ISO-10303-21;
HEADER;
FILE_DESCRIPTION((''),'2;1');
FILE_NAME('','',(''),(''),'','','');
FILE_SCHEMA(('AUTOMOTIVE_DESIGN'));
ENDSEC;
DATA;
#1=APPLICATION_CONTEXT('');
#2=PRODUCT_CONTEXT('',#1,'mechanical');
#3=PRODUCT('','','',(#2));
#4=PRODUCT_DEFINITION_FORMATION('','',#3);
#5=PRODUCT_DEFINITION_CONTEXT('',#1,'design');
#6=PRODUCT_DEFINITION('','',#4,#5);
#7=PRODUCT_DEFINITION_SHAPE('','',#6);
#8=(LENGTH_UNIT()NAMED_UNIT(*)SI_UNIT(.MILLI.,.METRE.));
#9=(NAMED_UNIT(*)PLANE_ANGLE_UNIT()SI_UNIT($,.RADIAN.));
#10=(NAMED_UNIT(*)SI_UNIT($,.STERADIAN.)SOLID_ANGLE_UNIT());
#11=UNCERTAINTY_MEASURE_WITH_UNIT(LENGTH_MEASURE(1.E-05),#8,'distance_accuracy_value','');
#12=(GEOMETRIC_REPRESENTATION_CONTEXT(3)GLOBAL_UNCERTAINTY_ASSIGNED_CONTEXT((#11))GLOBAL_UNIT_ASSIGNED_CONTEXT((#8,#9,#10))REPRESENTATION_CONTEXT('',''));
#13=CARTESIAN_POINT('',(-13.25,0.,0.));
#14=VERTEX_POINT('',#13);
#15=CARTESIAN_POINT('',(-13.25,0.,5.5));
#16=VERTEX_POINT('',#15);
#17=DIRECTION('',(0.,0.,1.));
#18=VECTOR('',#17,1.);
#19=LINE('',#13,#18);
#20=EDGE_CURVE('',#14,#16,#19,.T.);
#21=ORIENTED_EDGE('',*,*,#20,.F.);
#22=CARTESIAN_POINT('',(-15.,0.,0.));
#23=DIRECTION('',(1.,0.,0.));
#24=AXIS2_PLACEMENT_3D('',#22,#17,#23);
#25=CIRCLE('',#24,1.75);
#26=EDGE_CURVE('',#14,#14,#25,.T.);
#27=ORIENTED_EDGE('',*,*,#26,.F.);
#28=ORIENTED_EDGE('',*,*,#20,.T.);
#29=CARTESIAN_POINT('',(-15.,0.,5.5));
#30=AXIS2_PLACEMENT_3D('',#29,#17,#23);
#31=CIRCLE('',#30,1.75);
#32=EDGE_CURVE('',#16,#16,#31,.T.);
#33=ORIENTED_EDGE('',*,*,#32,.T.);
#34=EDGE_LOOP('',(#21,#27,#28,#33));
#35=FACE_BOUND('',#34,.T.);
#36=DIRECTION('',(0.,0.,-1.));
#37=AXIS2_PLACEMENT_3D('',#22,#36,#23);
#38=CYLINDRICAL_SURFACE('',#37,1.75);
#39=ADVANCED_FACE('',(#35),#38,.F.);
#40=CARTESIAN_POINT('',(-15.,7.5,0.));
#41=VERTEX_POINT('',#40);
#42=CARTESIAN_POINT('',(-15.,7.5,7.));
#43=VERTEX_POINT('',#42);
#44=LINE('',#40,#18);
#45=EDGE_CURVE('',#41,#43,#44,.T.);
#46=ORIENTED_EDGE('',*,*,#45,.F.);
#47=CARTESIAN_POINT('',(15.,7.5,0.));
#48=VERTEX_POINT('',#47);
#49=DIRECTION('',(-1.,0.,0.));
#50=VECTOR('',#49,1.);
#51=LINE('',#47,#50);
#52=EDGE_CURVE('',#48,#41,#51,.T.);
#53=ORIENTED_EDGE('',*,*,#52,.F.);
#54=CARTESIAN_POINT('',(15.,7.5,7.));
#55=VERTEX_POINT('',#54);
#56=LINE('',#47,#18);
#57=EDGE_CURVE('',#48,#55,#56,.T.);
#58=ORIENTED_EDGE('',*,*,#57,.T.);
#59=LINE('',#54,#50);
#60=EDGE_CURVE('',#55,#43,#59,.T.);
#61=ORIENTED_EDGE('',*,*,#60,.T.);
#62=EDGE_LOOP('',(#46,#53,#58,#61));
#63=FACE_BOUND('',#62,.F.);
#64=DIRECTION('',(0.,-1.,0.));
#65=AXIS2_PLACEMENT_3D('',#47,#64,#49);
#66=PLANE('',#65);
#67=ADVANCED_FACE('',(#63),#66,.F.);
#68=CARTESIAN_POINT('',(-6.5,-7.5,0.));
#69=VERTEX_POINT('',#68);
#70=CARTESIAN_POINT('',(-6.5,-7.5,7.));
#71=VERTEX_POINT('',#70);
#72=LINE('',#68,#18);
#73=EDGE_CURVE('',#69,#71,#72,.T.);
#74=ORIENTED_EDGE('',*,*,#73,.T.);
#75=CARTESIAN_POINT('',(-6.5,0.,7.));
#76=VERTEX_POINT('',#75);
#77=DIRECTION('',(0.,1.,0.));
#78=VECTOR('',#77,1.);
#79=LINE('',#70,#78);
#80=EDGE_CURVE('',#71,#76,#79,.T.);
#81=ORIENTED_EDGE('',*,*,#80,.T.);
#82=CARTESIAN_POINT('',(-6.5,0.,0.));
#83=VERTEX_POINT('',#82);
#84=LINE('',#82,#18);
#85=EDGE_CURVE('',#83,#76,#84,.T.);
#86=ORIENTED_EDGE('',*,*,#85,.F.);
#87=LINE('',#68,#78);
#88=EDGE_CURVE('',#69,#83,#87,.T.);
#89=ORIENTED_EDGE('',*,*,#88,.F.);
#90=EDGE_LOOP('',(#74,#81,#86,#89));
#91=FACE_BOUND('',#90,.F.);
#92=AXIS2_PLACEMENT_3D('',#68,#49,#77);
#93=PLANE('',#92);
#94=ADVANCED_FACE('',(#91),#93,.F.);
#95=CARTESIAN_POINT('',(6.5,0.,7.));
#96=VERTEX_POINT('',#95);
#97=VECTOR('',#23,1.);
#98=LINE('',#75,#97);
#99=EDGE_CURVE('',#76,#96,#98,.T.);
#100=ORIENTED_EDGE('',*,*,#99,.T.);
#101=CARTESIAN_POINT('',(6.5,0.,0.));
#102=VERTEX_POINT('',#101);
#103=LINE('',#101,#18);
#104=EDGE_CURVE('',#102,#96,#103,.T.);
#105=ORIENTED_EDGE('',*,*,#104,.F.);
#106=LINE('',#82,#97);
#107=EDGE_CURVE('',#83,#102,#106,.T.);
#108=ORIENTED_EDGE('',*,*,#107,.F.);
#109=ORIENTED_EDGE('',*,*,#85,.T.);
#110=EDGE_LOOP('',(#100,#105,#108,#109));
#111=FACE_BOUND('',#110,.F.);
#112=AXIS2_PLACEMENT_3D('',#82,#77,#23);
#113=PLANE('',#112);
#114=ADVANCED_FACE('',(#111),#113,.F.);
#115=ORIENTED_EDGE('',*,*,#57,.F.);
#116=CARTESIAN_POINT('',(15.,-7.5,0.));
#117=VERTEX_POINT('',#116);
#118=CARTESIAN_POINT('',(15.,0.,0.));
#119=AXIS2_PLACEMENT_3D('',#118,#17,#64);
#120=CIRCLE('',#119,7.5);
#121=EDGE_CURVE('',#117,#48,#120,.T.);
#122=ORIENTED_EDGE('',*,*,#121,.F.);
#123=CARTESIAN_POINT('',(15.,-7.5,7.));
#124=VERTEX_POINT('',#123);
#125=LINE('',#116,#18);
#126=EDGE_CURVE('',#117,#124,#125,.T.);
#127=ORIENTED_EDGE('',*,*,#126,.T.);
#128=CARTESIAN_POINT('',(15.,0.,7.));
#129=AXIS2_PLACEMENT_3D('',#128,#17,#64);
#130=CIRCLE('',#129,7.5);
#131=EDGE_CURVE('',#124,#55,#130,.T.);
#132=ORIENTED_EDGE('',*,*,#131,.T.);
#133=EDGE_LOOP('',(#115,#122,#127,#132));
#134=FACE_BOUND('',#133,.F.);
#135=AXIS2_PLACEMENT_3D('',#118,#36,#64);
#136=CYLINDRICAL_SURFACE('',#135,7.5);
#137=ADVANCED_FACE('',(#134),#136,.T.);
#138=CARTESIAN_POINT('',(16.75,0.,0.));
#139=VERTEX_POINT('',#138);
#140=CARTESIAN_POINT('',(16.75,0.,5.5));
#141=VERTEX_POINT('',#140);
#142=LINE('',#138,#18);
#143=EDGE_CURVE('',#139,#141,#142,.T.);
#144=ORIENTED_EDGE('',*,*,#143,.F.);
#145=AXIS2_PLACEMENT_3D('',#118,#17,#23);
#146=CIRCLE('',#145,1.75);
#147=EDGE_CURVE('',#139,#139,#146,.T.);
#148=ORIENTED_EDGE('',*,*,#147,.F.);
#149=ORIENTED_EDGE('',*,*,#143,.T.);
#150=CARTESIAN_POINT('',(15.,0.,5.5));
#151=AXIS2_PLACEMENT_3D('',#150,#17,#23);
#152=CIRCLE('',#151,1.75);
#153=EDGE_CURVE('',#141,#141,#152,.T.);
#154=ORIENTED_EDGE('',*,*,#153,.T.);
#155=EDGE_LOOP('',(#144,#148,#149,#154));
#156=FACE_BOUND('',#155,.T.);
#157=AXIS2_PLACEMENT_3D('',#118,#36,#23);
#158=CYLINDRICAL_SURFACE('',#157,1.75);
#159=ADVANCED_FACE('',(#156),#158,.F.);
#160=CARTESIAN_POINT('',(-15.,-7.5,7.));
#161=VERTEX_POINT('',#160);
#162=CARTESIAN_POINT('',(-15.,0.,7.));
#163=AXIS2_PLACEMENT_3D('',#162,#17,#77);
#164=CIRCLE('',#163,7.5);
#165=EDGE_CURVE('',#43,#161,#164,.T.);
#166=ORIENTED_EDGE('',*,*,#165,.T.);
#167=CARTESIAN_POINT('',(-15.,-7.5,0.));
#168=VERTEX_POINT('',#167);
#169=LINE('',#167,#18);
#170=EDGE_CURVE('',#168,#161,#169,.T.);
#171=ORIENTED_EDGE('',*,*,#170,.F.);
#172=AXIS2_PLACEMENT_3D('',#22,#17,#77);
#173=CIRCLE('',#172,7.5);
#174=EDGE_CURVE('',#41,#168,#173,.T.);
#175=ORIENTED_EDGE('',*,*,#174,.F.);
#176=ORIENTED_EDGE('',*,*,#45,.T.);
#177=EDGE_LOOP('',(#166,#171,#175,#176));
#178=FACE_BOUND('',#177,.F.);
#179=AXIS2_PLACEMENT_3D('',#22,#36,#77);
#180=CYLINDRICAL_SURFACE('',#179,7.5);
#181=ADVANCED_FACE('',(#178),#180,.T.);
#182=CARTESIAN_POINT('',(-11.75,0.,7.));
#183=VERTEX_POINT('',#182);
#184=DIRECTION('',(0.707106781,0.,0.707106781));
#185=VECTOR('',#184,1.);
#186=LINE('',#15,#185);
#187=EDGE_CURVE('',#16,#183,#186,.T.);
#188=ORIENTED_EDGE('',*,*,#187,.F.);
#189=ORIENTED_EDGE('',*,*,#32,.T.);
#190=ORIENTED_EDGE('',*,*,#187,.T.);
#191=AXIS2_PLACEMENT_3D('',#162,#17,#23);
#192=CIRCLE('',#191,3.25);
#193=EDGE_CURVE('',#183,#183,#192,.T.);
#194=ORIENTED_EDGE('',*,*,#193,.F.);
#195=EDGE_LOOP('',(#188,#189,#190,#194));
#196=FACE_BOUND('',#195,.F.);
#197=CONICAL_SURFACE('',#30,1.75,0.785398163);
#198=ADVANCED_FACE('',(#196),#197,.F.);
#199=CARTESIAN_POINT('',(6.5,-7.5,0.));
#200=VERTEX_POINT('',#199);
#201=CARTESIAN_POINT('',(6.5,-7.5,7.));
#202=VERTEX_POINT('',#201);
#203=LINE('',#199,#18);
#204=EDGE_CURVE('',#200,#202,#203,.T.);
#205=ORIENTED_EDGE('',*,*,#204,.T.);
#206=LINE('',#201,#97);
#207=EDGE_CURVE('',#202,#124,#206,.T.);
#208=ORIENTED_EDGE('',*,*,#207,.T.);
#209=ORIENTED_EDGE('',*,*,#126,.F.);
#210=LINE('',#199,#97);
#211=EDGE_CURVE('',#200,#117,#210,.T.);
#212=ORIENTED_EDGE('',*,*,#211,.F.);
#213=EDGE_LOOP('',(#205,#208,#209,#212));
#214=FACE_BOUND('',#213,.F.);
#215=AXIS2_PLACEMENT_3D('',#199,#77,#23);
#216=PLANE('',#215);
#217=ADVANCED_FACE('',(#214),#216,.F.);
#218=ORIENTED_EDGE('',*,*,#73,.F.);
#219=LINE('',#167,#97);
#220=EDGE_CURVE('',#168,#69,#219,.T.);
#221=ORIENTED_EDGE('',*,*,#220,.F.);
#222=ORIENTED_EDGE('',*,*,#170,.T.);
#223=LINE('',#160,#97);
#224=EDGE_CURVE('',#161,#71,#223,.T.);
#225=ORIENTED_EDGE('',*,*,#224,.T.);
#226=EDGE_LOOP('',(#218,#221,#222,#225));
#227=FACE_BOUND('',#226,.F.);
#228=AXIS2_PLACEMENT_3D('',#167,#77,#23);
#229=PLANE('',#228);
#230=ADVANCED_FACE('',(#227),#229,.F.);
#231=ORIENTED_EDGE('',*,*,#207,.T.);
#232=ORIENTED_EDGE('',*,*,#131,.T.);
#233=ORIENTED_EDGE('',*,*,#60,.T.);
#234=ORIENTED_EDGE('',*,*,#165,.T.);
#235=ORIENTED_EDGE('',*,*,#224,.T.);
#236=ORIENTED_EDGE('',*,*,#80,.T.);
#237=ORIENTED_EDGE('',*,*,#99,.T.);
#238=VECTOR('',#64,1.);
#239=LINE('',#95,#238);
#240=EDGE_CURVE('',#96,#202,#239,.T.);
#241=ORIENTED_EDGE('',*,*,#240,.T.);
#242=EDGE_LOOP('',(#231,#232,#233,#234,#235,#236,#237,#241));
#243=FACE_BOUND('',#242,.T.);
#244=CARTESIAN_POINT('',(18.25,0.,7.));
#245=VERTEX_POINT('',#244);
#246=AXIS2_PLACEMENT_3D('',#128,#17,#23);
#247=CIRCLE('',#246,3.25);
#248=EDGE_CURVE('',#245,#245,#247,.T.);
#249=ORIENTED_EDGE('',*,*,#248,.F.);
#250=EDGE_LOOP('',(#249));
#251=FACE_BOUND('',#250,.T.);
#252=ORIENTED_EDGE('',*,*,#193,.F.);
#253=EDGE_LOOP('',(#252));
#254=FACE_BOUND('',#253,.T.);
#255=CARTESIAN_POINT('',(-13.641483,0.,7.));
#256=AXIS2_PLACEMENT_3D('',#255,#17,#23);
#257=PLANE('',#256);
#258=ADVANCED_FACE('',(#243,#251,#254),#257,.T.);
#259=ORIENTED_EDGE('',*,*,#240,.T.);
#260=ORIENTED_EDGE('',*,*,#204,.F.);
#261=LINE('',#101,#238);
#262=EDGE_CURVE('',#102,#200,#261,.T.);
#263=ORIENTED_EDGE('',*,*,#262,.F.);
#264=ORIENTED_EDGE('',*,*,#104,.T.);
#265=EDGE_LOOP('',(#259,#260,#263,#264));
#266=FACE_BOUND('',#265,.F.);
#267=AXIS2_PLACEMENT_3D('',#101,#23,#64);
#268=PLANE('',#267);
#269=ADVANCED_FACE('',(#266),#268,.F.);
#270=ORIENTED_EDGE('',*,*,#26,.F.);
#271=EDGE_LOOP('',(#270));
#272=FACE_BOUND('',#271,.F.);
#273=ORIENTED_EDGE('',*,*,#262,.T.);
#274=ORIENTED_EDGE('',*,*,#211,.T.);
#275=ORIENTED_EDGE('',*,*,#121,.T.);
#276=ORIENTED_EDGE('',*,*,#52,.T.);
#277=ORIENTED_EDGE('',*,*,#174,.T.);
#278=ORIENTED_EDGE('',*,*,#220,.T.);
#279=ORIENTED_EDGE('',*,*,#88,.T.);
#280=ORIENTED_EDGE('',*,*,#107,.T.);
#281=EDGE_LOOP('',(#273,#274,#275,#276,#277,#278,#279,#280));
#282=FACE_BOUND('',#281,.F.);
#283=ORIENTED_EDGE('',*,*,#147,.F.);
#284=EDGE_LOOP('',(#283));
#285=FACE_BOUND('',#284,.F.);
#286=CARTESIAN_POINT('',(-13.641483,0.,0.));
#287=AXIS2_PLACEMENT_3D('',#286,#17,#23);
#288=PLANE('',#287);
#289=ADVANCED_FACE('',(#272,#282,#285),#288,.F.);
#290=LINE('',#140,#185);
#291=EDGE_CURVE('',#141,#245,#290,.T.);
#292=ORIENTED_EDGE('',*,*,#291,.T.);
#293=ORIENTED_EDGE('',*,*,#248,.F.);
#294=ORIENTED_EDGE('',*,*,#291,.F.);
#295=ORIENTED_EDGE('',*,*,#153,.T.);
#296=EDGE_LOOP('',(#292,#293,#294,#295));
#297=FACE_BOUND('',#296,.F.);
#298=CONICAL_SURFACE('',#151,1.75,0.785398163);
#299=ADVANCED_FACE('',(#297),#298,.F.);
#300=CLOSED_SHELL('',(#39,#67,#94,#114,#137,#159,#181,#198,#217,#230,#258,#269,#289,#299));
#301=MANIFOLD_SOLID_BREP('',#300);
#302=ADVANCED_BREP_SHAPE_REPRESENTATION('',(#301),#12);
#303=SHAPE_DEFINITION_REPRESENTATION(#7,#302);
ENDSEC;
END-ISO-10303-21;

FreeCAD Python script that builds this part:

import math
import FreeCAD as App
import Part
import Sketcher
from FreeCAD import Vector
Q = App.Units.Quantity


def edges_at(feature, points):
    """Names of the edges that pass closest to the given points."""
    edges = feature.Shape.Edges
    near = lambda p: min(range(len(edges)), key=lambda i: edges[i].distToShape(Part.Vertex(*p))[0])
    return sorted({f"Edge{near(p) + 1}" for p in points})

doc = App.newDocument("Part")
body = doc.addObject("PartDesign::Body", "Body")

sketch1 = body.newObject("Sketcher::SketchObject", "Sketch")
sketch1.AttachmentSupport = (doc.getObject("XY_Plane"), [""])
sketch1.MapMode = "FlatFace"
sketch1.addGeometry(Part.LineSegment(Vector(-15, -7.5, 0), Vector(-6.5, -7.5, 0)), False)
sketch1.addGeometry(Part.LineSegment(Vector(-6.5, -7.5, 0), Vector(-6.5, 0, 0)), False)
sketch1.addGeometry(Part.LineSegment(Vector(-6.5, 0, 0), Vector(6.5, 0, 0)), False)
sketch1.addGeometry(Part.LineSegment(Vector(6.5, 0, 0), Vector(6.5, -7.5, 0)), False)
sketch1.addGeometry(Part.LineSegment(Vector(6.5, -7.5, 0), Vector(15, -7.5, 0)), False)
sketch1.addGeometry(Part.ArcOfCircle(Part.Circle(Vector(15, 0, 0), Vector(0, 0, 1), 7.5), math.radians(-90), math.radians(90)), False)
sketch1.addGeometry(Part.LineSegment(Vector(15, 7.5, 0), Vector(-15, 7.5, 0)), False)
sketch1.addGeometry(Part.ArcOfCircle(Part.Circle(Vector(-15, 0, 0), Vector(0, 0, 1), 7.5), math.radians(90), math.radians(270)), False)
sketch1.addGeometry(Part.Circle(Vector(-15, 0, 0), Vector(0, 0, 1), 1.8), False)
sketch1.addGeometry(Part.Circle(Vector(15, 0, 0), Vector(0, 0, 1), 1.8), False)
sketch1.addConstraint(Sketcher.Constraint("Coincident", 0, 2, 1, 1))
sketch1.addConstraint(Sketcher.Constraint("Coincident", 1, 2, 2, 1))
sketch1.addConstraint(Sketcher.Constraint("Coincident", 2, 2, 3, 1))
sketch1.addConstraint(Sketcher.Constraint("Coincident", 3, 2, 4, 1))
sketch1.addConstraint(Sketcher.Constraint("Tangent", 4, 2, 5, 1))
sketch1.addConstraint(Sketcher.Constraint("Tangent", 5, 2, 6, 1))
sketch1.addConstraint(Sketcher.Constraint("Tangent", 6, 2, 7, 1))
sketch1.addConstraint(Sketcher.Constraint("Tangent", 7, 2, 0, 1))
sketch1.addConstraint(Sketcher.Constraint("Horizontal", 0))
sketch1.addConstraint(Sketcher.Constraint("Vertical", 1))
sketch1.addConstraint(Sketcher.Constraint("Horizontal", 2))
sketch1.addConstraint(Sketcher.Constraint("Vertical", 3))
sketch1.addConstraint(Sketcher.Constraint("Horizontal", 4))
sketch1.addConstraint(Sketcher.Constraint("Horizontal", 6))
sketch1.addConstraint(Sketcher.Constraint("Coincident", 8, 3, 7, 3))
sketch1.addConstraint(Sketcher.Constraint("Coincident", 9, 3, 5, 3))
sketch1.addConstraint(Sketcher.Constraint("Equal", 5, 7))
sketch1.addConstraint(Sketcher.Constraint("Equal", 8, 9))
sketch1.addConstraint(Sketcher.Constraint("Symmetric", 5, 3, 7, 3, -1, 1))
sketch1.addConstraint(Sketcher.Constraint("Symmetric", 1, 2, 2, 2, -1, 1))
sketch1.addConstraint(Sketcher.Constraint("Diameter", 8, Q("3.5 mm")))
sketch1.addConstraint(Sketcher.Constraint("Radius", 5, Q("7.5 mm")))
sketch1.addConstraint(Sketcher.Constraint("DistanceX", 2, 1, 2, 2, Q("13 mm")))
sketch1.addConstraint(Sketcher.Constraint("DistanceX", 6, 2, 6, 1, Q("30 mm")))
pad1 = body.newObject("PartDesign::Pad", "Pad")
pad1.Profile = sketch1
pad1.Length = 7
doc.recompute()

chamfer = body.newObject("PartDesign::Chamfer", "Chamfer")
chamfer.Base = (pad1, edges_at(pad1, [(-16.75, 0, 7), (13.25, 0, 7)]))
chamfer.Size = 1.5

doc.recompute()
